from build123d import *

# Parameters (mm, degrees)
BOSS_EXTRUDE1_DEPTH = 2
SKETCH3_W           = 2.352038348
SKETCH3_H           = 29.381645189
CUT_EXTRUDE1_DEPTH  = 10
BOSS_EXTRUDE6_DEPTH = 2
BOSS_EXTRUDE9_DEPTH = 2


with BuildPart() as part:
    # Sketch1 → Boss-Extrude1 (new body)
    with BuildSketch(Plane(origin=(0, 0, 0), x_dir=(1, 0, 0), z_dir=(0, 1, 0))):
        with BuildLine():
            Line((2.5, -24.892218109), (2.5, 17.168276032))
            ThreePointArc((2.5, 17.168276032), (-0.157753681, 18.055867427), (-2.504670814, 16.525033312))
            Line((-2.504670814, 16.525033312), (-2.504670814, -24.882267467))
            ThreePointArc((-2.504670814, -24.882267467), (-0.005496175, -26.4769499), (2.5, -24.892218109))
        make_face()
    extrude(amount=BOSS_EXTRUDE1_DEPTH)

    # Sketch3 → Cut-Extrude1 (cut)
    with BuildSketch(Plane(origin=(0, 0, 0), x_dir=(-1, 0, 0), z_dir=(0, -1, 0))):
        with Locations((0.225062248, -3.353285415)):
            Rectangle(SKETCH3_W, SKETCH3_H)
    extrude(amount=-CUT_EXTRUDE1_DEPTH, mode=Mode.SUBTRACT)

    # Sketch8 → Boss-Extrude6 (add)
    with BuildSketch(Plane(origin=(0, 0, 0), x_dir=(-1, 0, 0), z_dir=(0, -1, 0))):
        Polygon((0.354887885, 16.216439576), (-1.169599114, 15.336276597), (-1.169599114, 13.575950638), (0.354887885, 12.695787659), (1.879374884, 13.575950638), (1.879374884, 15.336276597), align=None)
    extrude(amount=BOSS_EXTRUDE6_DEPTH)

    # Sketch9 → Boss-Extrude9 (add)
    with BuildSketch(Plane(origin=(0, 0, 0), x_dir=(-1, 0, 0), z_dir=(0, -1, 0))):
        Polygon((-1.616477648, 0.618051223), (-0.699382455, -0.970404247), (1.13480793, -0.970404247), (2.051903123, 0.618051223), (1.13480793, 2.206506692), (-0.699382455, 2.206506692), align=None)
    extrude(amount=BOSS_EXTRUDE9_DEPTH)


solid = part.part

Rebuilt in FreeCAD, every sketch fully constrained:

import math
import FreeCAD as App
import Part
import Sketcher

V = App.Vector
Q = App.Units.Quantity


def add_polygon(sketch, points):
    """Adds a closed chain of lines whose ends are joined by coincident constraints."""
    first, n = sketch.GeometryCount, len(points)
    for a, b in zip(points, points[1:] + points[:1]):
        sketch.addGeometry(Part.LineSegment(App.Vector(*a, 0), App.Vector(*b, 0)), False)
    for i in range(n):
        sketch.addConstraint(Sketcher.Constraint("Coincident", first + i, 2, first + (i + 1) % n, 1))

doc = App.newDocument("Part")
body = doc.addObject("PartDesign::Body", "Body")

# Sketch on XZ plane
sketch1 = doc.addObject("Sketcher::SketchObject", "Sketch")
body.addObject(sketch1)
sketch1.AttachmentSupport = (doc.XZ_Plane, [""])
sketch1.MapMode = "FlatFace"
sketch1.addGeometry([
    Part.LineSegment(V(2.5, 24.9, 0), V(2.5, -17.2, 0)),
    Part.ArcOfCircle(Part.Circle(V(0.3, -14.9, 0), V(0, 0, 1), 3.2), math.radians(-149), math.radians(-46)),
    Part.LineSegment(V(-2.5, -16.5, 0), V(-2.5, 24.9, 0)),
    Part.ArcOfCircle(Part.Circle(V(0, 23.7, 0), V(0, 0, 1), 2.8), math.radians(25), math.radians(155)),
], False)
sketch1.addConstraint([
    Sketcher.Constraint("Coincident", 0, 2, 1, 2),
    Sketcher.Constraint("Coincident", 1, 1, 2, 1),
    Sketcher.Constraint("Coincident", 2, 2, 3, 2),
    Sketcher.Constraint("Coincident", 3, 1, 0, 1),
    Sketcher.Constraint("Vertical", 0),
    Sketcher.Constraint("Vertical", 2),
    Sketcher.Constraint("PointOnObject", 3, 3, -2),
    Sketcher.Constraint("DistanceX", -1, 1, 0, 2, Q("2.5 mm")),
    Sketcher.Constraint("DistanceY", 2, 1, 2, 2, Q("41.407301 mm")),
    Sketcher.Constraint("Radius", 1, Q("3.220035 mm")),
    Sketcher.Constraint("Radius", 3, Q("2.764304 mm")),
    Sketcher.Constraint("DistanceY", 0, 2, 0, 1, Q("42.060494 mm")),
    Sketcher.Constraint("DistanceY", -1, 1, 3, 3, Q("23.712651 mm")),
    Sketcher.Constraint("DistanceX", 1, 1, -1, 1, Q("2.504671 mm")),
])
pad1 = doc.addObject("PartDesign::Pad", "Pad")
body.addObject(pad1)
pad1.Profile = sketch1
pad1.Length = 2
pad1.Reversed = True

# Sketch on XZ plane
sketch2 = doc.addObject("Sketcher::SketchObject", "Sketch001")
body.addObject(sketch2)
sketch2.AttachmentSupport = (doc.XZ_Plane, [""])
sketch2.MapMode = "FlatFace"
add_polygon(sketch2, [(1, -11.3), (1, 18), (-1.4, 18), (-1.4, -11.3)])  # lines 0-3
sketch2.addConstraint([
    Sketcher.Constraint("Vertical", 0),
    Sketcher.Constraint("Horizontal", 1),
    Sketcher.Constraint("Vertical", 2),
    Sketcher.Constraint("Horizontal", 3),
    Sketcher.Constraint("DistanceX", 1, 2, 1, 1, Q("2.352038 mm")),
    Sketcher.Constraint("DistanceY", 0, 1, 0, 2, Q("29.381645 mm")),
    Sketcher.Constraint("DistanceY", -1, 1, 0, 2, Q("18.044108 mm")),
    Sketcher.Constraint("DistanceX", 1, 2, -1, 1, Q("1.401081 mm")),
])
pocket1 = doc.addObject("PartDesign::Pocket", "Pocket")
body.addObject(pocket1)
pocket1.Profile = sketch2
pocket1.Length = 10

# Sketch on XZ plane
sketch3 = doc.addObject("Sketcher::SketchObject", "Sketch002")
body.addObject(sketch3)
sketch3.AttachmentSupport = (doc.XZ_Plane, [""])
sketch3.MapMode = "FlatFace"
add_polygon(sketch3, [(-0.4, -16.2), (1.2, -15.3), (1.2, -13.6), (-0.4, -12.7), (-1.9, -13.6), (-1.9, -15.3)])  # lines 0-5
sketch3.addConstraint([
    Sketcher.Constraint("Vertical", 1),
    Sketcher.Constraint("Vertical", 4),
    Sketcher.Constraint("Parallel", 0, 3),
    Sketcher.Constraint("Parallel", 2, 5),
    Sketcher.Constraint("Horizontal", 1, 2, 3, 2),
    Sketcher.Constraint("Horizontal", 0, 2, 4, 2),
    Sketcher.Constraint("Vertical", 2, 2, 5, 2),
    Sketcher.Constraint("Angle", 0, Q("30 deg")),
    Sketcher.Constraint("DistanceX", -1, 1, 0, 2, Q("1.169599 mm")),
    Sketcher.Constraint("DistanceY", 1, 1, 1, 2, Q("1.760326 mm")),
    Sketcher.Constraint("DistanceY", 1, 2, -1, 1, Q("13.575951 mm")),
    Sketcher.Constraint("DistanceY", 5, 2, -1, 1, Q("16.21644 mm")),
])
pad2 = doc.addObject("PartDesign::Pad", "Pad001")
body.addObject(pad2)
pad2.Profile = sketch3
pad2.Length = 2

# Sketch on XZ plane
sketch4 = doc.addObject("Sketcher::SketchObject", "Sketch003")
body.addObject(sketch4)
sketch4.AttachmentSupport = (doc.XZ_Plane, [""])
sketch4.MapMode = "FlatFace"
add_polygon(sketch4, [(1.6, -0.6), (0.7, 1), (-1.1, 1), (-2.1, -0.6), (-1.1, -2.2), (0.7, -2.2)])  # lines 0-5
sketch4.addConstraint([
    Sketcher.Constraint("Horizontal", 1),
    Sketcher.Constraint("Horizontal", 4),
    Sketcher.Constraint("Parallel", 0, 3),
    Sketcher.Constraint("Parallel", 2, 5),
    Sketcher.Constraint("Horizontal", 2, 2, 5, 2),
    Sketcher.Constraint("Vertical", 1, 2, 3, 2),
    Sketcher.Constraint("Vertical", 0, 2, 4, 2),
    Sketcher.Constraint("Angle", 0, Q("120 deg")),
    Sketcher.Constraint("DistanceX", 1, 2, 1, 1, Q("1.83419 mm")),
    Sketcher.Constraint("Distance", 0, Q("1.83419 mm")),
    Sketcher.Constraint("DistanceY", 2, 2, -1, 1, Q("0.618051 mm")),
    Sketcher.Constraint("DistanceX", -1, 1, 0, 2, Q("0.699382 mm")),
])
pad3 = doc.addObject("PartDesign::Pad", "Pad002")
body.addObject(pad3)
pad3.Profile = sketch4
pad3.Length = 2

doc.recompute()
